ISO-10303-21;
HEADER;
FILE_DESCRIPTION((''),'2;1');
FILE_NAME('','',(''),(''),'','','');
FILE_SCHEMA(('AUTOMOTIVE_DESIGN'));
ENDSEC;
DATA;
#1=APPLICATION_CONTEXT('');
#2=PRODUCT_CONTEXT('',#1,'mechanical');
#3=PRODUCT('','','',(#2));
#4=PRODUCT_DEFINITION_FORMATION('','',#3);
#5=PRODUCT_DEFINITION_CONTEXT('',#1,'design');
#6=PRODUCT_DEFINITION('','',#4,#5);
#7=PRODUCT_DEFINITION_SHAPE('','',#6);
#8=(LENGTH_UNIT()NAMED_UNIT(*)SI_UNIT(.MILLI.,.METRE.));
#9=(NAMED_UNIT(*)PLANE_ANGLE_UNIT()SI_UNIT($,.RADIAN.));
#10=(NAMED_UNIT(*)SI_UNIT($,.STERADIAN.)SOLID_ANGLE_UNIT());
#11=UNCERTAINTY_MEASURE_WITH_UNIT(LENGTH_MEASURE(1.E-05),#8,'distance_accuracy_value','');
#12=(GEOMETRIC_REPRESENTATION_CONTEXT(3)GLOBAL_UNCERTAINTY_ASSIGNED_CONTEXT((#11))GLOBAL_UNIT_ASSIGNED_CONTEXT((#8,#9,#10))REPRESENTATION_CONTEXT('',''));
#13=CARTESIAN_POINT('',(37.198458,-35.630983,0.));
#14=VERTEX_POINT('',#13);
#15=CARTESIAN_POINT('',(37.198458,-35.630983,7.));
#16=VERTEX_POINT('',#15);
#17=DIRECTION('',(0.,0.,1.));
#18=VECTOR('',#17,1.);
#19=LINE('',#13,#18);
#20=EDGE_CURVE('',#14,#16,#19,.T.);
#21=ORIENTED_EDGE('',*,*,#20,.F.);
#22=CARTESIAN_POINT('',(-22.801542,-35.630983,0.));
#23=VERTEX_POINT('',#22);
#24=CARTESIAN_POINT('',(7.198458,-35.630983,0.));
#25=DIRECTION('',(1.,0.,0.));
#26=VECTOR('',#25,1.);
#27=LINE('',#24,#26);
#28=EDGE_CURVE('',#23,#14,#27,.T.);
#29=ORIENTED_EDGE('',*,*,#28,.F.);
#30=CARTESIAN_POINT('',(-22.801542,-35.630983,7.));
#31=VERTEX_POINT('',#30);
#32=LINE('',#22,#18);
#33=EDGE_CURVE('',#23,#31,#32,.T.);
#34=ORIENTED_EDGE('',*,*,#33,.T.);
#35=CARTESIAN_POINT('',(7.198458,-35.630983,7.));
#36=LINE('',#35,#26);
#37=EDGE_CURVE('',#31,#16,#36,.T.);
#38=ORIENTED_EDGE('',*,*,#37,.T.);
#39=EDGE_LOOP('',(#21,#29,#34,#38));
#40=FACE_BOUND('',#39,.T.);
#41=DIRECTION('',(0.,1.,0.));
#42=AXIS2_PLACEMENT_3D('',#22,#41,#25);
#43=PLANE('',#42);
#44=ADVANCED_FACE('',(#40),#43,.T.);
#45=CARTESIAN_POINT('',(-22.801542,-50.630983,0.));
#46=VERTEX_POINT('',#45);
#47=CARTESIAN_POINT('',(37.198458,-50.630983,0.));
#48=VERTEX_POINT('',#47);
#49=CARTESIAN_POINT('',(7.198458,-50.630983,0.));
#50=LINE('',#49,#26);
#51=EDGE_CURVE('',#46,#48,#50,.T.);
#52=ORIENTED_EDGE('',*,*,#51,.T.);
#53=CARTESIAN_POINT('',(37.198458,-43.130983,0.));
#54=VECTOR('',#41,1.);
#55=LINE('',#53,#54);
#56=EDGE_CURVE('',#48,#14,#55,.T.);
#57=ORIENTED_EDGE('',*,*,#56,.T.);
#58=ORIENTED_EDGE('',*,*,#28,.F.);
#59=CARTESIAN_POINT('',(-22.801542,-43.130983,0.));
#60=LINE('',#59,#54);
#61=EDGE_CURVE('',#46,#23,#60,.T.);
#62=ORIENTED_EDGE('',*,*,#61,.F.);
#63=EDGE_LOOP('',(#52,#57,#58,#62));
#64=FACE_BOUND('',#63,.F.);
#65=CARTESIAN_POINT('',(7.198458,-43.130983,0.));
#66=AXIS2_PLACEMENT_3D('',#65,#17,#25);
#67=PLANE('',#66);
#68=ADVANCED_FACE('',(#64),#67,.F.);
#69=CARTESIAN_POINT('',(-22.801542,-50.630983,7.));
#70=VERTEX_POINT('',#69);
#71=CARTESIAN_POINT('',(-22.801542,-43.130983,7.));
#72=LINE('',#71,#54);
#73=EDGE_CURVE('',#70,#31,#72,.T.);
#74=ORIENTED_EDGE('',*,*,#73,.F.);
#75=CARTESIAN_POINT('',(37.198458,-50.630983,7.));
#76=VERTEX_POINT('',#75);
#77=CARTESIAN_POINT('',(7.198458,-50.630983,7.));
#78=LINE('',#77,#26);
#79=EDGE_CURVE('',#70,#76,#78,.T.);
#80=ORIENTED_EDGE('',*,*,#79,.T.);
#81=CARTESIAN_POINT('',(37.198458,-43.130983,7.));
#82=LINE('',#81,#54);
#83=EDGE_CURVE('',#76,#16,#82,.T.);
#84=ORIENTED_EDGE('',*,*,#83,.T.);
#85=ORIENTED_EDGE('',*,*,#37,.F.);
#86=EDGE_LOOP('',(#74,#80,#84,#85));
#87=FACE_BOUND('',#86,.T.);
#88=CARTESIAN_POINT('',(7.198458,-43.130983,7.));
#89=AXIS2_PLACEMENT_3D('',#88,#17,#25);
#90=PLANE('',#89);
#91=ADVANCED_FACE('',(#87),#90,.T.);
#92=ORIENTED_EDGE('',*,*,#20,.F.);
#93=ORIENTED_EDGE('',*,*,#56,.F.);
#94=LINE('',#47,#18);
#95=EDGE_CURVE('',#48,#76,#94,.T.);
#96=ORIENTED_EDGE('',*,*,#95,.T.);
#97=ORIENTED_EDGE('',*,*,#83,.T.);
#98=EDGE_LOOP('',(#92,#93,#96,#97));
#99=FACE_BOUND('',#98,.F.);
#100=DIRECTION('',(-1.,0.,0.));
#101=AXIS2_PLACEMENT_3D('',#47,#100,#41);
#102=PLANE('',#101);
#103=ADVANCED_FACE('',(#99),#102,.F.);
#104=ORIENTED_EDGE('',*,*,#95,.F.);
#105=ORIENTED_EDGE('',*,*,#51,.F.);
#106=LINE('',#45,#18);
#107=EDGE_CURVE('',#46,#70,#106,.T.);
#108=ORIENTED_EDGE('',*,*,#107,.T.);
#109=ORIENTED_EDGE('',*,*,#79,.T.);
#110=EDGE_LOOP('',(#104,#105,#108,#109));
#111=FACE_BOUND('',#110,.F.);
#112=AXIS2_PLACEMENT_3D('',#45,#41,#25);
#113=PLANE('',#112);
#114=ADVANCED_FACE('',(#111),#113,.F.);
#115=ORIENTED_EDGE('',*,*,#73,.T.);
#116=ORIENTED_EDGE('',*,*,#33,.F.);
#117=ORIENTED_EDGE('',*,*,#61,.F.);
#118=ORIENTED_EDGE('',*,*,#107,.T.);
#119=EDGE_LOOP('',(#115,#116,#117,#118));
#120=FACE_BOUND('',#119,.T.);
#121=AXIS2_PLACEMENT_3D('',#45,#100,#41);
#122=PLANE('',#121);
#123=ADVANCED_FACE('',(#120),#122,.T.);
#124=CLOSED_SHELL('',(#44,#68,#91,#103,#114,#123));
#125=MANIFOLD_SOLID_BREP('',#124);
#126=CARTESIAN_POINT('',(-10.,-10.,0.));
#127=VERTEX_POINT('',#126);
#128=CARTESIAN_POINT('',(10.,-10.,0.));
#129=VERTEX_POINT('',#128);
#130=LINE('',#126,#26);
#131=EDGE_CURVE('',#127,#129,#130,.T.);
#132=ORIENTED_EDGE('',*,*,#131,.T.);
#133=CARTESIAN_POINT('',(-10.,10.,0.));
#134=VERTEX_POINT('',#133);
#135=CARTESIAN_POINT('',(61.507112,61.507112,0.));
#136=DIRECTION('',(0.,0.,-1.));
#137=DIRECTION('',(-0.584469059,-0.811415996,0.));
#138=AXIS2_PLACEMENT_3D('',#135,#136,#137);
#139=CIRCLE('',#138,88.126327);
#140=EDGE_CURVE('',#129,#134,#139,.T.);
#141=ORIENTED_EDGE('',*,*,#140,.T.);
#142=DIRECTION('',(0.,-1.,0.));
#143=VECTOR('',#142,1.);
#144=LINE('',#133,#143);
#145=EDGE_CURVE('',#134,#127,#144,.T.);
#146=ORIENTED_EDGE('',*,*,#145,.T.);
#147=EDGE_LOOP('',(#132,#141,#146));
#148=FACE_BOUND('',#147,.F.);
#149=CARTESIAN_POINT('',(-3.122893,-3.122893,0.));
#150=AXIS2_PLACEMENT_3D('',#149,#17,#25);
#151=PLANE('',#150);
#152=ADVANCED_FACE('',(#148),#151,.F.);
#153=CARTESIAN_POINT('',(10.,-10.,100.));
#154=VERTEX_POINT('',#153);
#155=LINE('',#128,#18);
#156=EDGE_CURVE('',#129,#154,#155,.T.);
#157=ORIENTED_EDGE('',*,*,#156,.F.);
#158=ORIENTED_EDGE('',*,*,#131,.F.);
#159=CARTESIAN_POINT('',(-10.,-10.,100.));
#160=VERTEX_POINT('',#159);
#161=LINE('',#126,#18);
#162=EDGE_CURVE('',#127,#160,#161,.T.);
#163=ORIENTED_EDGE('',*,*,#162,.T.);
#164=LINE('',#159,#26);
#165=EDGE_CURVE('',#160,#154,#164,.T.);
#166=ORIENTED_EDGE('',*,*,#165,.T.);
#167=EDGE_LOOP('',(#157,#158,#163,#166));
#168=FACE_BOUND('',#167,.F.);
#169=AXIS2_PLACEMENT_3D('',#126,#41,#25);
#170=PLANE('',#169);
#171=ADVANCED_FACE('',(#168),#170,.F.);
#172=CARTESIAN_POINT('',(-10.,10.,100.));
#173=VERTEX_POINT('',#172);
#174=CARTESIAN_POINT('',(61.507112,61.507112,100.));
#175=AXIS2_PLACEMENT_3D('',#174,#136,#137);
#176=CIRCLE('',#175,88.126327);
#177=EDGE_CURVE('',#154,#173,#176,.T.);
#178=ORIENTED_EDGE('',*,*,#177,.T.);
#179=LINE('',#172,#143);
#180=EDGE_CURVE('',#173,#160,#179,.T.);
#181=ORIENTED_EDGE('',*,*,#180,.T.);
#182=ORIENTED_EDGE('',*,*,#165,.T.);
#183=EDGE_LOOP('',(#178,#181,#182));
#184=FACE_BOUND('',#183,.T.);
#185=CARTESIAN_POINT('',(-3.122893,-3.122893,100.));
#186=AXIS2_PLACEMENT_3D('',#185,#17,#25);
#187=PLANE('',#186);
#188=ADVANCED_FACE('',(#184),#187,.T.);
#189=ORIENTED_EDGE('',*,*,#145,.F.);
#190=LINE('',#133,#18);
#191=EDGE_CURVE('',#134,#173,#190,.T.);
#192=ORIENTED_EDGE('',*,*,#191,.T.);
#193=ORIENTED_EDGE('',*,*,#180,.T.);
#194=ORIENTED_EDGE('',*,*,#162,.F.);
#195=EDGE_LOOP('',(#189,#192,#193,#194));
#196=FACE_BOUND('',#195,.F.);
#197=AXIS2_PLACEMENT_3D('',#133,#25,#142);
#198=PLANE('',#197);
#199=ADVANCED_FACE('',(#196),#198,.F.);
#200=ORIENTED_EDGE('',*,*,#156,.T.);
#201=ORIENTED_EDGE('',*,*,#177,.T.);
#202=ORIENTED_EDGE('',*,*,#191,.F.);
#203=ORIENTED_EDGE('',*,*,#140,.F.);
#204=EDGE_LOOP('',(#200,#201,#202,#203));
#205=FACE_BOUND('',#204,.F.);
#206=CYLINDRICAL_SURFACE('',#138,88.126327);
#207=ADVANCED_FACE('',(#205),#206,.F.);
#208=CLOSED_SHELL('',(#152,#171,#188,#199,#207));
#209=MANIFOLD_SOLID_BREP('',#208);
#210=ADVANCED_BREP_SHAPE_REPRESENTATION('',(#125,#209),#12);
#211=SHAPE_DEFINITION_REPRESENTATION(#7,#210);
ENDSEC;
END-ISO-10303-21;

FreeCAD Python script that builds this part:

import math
import FreeCAD as App
import Part
import Sketcher

V = App.Vector


def add_polygon(sketch, points):
    """Adds a closed chain of lines whose ends are joined by coincident constraints."""
    first, n = sketch.GeometryCount, len(points)
    for a, b in zip(points, points[1:] + points[:1]):
        sketch.addGeometry(Part.LineSegment(App.Vector(*a, 0), App.Vector(*b, 0)), False)
    for i in range(n):
        sketch.addConstraint(Sketcher.Constraint("Coincident", first + i, 2, first + (i + 1) % n, 1))

doc = App.newDocument("Part")
body = doc.addObject("PartDesign::Body", "Body")

# Sketch on XY plane
sketch1 = body.newObject("Sketcher::SketchObject", "Sketch")
sketch1.AttachmentSupport = (doc.getObject("XY_Plane"), [""])
sketch1.MapMode = "FlatFace"
sketch1.addGeometry([
    Part.LineSegment(V(-10, 10, 0), V(-10, -10, 0)),
    Part.LineSegment(V(-10, -10, 0), V(10, -10, 0)),
    Part.ArcOfCircle(Part.Circle(V(61.507112, 61.507112, 0), V(0, 0, 1), 88.126327), math.radians(-144.23451), math.radians(-125.76549)),
], False)
sketch1.addConstraint([
    Sketcher.Constraint("Coincident", 0, 2, 1, 1),
    Sketcher.Constraint("Coincident", 1, 2, 2, 2),
    Sketcher.Constraint("Coincident", 2, 1, 0, 1),
    Sketcher.Constraint("Vertical", 0),
    Sketcher.Constraint("Horizontal", 1),
    Sketcher.Constraint("Symmetric", 1, 2, 2, 1, -1, 1),
    Sketcher.Constraint("Equal", 1, 0),
    Sketcher.Constraint("DistanceX", 1, 1, 1, 2, 20.0),
    Sketcher.Constraint("Radius", 2, 88.126327),
])
pad1 = body.newObject("PartDesign::Pad", "Pad")
pad1.Profile = sketch1
pad1.Length = 100
body2 = doc.addObject("PartDesign::Body", "Body001")

# Sketch on XY plane
sketch2 = body2.newObject("Sketcher::SketchObject", "Sketch001")
sketch2.AttachmentSupport = (doc.getObject("XY_Plane001"), [""])
sketch2.MapMode = "FlatFace"
add_polygon(sketch2, [(-22.801542, -35.630983), (-22.801542, -50.630983), (37.198458, -50.630983), (37.198458, -35.630983)])  # lines 0-3
sketch2.addConstraint([
    Sketcher.Constraint("Vertical", 0),
    Sketcher.Constraint("Horizontal", 1),
    Sketcher.Constraint("Vertical", 2),
    Sketcher.Constraint("Horizontal", 3),
    Sketcher.Constraint("DistanceX", 1, 1, 1, 2, 60.0),
    Sketcher.Constraint("DistanceY", 0, 2, 0, 1, 15.0),
    Sketcher.Constraint("DistanceX", -1, 1, 1, 2, 37.198458),
    Sketcher.Constraint("DistanceY", 0, 2, -1, 1, 50.630983),
])
pad2 = body2.newObject("PartDesign::Pad", "Pad001")
pad2.Profile = sketch2
pad2.Length = 7

doc.recompute()
